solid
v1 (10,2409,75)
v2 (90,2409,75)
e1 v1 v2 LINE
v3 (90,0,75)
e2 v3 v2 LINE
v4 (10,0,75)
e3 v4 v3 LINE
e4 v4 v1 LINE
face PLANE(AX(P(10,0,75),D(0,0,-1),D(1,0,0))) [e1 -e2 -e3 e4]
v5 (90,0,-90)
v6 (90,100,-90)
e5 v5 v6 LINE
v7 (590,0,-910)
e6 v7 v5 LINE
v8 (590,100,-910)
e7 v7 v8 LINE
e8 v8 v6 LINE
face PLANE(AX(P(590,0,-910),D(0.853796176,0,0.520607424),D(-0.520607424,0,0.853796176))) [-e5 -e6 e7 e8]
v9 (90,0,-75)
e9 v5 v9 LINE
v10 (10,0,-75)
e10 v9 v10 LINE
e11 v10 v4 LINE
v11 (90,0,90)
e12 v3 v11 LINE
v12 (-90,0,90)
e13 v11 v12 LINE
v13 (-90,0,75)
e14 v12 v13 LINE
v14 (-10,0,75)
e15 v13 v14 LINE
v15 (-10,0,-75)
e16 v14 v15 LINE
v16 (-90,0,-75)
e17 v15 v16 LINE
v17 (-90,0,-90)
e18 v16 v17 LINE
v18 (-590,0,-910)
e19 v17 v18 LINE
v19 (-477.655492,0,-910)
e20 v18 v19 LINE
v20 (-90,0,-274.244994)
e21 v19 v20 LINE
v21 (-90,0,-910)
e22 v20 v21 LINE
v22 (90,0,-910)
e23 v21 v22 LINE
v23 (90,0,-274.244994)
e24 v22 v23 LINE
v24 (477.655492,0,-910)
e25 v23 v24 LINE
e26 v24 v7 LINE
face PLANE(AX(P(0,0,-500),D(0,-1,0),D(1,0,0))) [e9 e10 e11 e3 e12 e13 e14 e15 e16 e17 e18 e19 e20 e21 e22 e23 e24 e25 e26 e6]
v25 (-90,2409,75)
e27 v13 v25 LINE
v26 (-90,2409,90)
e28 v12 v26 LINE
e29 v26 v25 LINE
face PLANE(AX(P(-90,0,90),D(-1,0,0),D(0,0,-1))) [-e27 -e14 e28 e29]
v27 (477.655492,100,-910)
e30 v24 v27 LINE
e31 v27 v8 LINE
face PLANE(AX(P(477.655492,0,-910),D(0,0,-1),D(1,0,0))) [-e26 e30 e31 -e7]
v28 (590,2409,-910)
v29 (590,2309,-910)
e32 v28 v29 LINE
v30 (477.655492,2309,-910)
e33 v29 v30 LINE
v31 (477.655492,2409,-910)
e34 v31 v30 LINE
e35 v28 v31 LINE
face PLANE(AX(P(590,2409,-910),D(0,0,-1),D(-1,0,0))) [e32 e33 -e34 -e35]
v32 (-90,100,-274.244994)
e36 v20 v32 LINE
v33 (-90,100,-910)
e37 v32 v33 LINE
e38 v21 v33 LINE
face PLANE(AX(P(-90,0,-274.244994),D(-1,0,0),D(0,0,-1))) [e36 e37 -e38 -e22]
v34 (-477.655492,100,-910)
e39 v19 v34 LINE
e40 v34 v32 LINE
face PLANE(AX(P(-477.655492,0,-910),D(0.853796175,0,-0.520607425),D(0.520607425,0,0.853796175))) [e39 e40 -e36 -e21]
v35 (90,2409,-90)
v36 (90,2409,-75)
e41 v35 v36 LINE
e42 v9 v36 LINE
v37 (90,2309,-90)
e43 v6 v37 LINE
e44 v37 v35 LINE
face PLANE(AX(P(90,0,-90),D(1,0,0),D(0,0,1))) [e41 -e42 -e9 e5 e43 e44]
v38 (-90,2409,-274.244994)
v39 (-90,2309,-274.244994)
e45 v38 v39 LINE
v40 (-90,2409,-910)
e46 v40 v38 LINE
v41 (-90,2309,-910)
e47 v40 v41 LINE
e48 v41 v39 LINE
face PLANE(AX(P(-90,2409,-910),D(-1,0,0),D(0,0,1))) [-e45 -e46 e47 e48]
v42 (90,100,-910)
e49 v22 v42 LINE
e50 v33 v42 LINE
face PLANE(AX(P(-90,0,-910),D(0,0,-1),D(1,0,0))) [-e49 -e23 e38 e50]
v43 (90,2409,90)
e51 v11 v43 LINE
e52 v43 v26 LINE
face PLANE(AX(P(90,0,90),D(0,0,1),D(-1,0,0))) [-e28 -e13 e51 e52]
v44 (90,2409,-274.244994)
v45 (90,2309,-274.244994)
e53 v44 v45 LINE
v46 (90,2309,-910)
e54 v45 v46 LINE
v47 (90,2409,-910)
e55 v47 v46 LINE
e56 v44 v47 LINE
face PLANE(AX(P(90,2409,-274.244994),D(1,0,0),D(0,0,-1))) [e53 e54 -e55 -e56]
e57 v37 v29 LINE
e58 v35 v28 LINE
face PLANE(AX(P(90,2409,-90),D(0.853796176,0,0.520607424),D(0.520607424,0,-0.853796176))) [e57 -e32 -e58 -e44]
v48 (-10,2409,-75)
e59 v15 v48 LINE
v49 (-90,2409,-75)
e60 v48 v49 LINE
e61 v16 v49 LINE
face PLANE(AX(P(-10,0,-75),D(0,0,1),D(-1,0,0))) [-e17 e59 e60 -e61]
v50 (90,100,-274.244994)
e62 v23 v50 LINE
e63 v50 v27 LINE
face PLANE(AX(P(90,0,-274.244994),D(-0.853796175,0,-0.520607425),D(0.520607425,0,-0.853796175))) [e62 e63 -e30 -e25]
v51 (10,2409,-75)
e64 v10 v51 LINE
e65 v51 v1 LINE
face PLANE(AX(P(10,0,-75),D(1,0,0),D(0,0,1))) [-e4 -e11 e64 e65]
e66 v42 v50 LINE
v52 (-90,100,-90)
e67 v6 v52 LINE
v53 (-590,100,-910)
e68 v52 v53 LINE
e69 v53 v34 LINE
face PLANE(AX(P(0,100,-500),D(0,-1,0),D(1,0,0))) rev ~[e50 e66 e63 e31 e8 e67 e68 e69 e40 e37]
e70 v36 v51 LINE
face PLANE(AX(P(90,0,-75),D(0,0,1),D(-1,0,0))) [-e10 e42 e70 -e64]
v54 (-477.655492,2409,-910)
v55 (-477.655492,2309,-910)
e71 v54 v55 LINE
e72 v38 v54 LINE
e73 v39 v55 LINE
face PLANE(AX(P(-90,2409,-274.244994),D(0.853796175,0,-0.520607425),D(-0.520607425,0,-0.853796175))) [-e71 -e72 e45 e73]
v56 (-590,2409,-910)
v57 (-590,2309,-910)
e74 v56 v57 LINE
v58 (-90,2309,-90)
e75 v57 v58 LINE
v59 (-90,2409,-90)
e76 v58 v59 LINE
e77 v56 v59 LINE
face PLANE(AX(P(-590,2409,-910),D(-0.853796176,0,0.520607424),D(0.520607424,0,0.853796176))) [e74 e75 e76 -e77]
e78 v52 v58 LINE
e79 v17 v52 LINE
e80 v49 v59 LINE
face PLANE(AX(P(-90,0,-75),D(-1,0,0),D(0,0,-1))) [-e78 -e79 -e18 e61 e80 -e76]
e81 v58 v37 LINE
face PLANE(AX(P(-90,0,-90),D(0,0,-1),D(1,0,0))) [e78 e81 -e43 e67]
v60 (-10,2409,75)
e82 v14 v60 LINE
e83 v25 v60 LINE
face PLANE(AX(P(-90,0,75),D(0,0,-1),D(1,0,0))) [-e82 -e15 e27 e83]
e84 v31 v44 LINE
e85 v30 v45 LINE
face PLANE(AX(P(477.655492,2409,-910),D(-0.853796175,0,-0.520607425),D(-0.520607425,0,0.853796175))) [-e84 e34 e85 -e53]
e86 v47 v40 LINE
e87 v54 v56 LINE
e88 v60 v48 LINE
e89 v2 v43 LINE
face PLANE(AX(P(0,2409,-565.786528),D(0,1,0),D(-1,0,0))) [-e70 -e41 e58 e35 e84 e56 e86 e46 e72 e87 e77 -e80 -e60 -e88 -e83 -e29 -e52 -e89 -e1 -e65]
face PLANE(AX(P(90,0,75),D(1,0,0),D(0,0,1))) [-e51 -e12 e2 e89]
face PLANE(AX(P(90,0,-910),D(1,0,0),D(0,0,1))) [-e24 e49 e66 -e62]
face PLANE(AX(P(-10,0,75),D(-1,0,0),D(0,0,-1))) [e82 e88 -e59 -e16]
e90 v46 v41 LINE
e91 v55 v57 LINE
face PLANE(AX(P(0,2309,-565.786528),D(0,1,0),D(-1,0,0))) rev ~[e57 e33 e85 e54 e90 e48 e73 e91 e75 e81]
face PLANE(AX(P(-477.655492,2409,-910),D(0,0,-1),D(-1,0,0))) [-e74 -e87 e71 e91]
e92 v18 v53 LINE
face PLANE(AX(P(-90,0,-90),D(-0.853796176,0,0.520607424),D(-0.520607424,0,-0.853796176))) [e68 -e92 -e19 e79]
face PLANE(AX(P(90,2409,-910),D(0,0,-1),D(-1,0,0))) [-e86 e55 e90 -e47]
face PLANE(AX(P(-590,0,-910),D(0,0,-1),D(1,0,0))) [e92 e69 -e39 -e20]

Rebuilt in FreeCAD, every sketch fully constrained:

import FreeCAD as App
import Part
import Sketcher
from FreeCAD import Vector

doc = App.newDocument("Part")
body = doc.addObject("PartDesign::Body", "Body")

# Sketch on XZ plane
sketch1 = doc.addObject("Sketcher::SketchObject", "Sketch")
body.addObject(sketch1)
sketch1.AttachmentSupport = (doc.XZ_Plane, [""])
sketch1.MapMode = "FlatFace"
sketch1.addGeometry([
    Part.LineSegment(Vector(-90, -90, 0), Vector(90, -90, 0)),  # 0
    Part.LineSegment(Vector(90, -90, 0), Vector(90, -75, 0)),  # 1
    Part.LineSegment(Vector(90, -75, 0), Vector(10, -75, 0)),  # 2
    Part.LineSegment(Vector(10, -75, 0), Vector(10, 75, 0)),  # 3
    Part.LineSegment(Vector(10, 75, 0), Vector(90, 75, 0)),  # 4
    Part.LineSegment(Vector(90, 75, 0), Vector(90, 90, 0)),  # 5
    Part.LineSegment(Vector(90, 90, 0), Vector(-90, 90, 0)),  # 6
    Part.LineSegment(Vector(-90, 90, 0), Vector(-90, 75, 0)),  # 7
    Part.LineSegment(Vector(-90, 75, 0), Vector(-10, 75, 0)),  # 8
    Part.LineSegment(Vector(-10, 75, 0), Vector(-10, -75, 0)),  # 9
    Part.LineSegment(Vector(-10, -75, 0), Vector(-90, -75, 0)),  # 10
    Part.LineSegment(Vector(-90, -75, 0), Vector(-90, -90, 0)),  # 11
], False)
sketch1.addConstraint([
    Sketcher.Constraint("Coincident", 0, 2, 1, 1),
    Sketcher.Constraint("Coincident", 1, 2, 2, 1),
    Sketcher.Constraint("Coincident", 2, 2, 3, 1),
    Sketcher.Constraint("Coincident", 3, 2, 4, 1),
    Sketcher.Constraint("Coincident", 4, 2, 5, 1),
    Sketcher.Constraint("Coincident", 5, 2, 6, 1),
    Sketcher.Constraint("Coincident", 6, 2, 7, 1),
    Sketcher.Constraint("Coincident", 7, 2, 8, 1),
    Sketcher.Constraint("Coincident", 8, 2, 9, 1),
    Sketcher.Constraint("Coincident", 9, 2, 10, 1),
    Sketcher.Constraint("Coincident", 10, 2, 11, 1),
    Sketcher.Constraint("Coincident", 11, 2, 0, 1),
    Sketcher.Constraint("Horizontal", 0),
    Sketcher.Constraint("Vertical", 1),
    Sketcher.Constraint("Horizontal", 2),
    Sketcher.Constraint("Vertical", 3),
    Sketcher.Constraint("Horizontal", 4),
    Sketcher.Constraint("Vertical", 5),
    Sketcher.Constraint("Horizontal", 6),
    Sketcher.Constraint("Vertical", 7),
    Sketcher.Constraint("Horizontal", 8),
    Sketcher.Constraint("Vertical", 9),
    Sketcher.Constraint("Horizontal", 10),
    Sketcher.Constraint("Vertical", 11),
    Sketcher.Constraint("Symmetric", 0, 2, 6, 2, -1, 1),
    Sketcher.Constraint("Symmetric", 2, 2, 8, 2, -1, 1),
    Sketcher.Constraint("Symmetric", 4, 2, 10, 2, -1, 1),
    Sketcher.Constraint("Symmetric", 4, 2, 7, 2, -2),
    Sketcher.Constraint("DistanceX", 0, 1, 0, 2, 180.0),
    Sketcher.Constraint("DistanceX", 2, 2, 2, 1, 80.0),
    Sketcher.Constraint("DistanceY", 1, 1, 1, 2, 15.0),
    Sketcher.Constraint("DistanceY", 3, 1, 3, 2, 150.0),
])
pad1 = doc.addObject("PartDesign::Pad", "Pad")
body.addObject(pad1)
pad1.Profile = sketch1
pad1.Length = 2409
pad1.Reversed = True

# Sketch on XZ plane
sketch2 = doc.addObject("Sketcher::SketchObject", "Sketch001")
body.addObject(sketch2)
sketch2.AttachmentSupport = (doc.XZ_Plane, [""])
sketch2.MapMode = "FlatFace"
sketch2.addGeometry([
    Part.LineSegment(Vector(90, -90, 0), Vector(-90, -90, 0)),  # 0
    Part.LineSegment(Vector(-90, -90, 0), Vector(-590, -910, 0)),  # 1
    Part.LineSegment(Vector(-590, -910, 0), Vector(-478, -910, 0)),  # 2
    Part.LineSegment(Vector(-478, -910, 0), Vector(-90, -274, 0)),  # 3
    Part.LineSegment(Vector(-90, -274, 0), Vector(-90, -910, 0)),  # 4
    Part.LineSegment(Vector(-90, -910, 0), Vector(90, -910, 0)),  # 5
    Part.LineSegment(Vector(90, -910, 0), Vector(90, -274, 0)),  # 6
    Part.LineSegment(Vector(90, -274, 0), Vector(478, -910, 0)),  # 7
    Part.LineSegment(Vector(478, -910, 0), Vector(590, -910, 0)),  # 8
    Part.LineSegment(Vector(590, -910, 0), Vector(90, -90, 0)),  # 9
], False)
sketch2.addConstraint([
    Sketcher.Constraint("Coincident", 0, 2, 1, 1),
    Sketcher.Constraint("Coincident", 1, 2, 2, 1),
    Sketcher.Constraint("Coincident", 2, 2, 3, 1),
    Sketcher.Constraint("Coincident", 3, 2, 4, 1),
    Sketcher.Constraint("Coincident", 4, 2, 5, 1),
    Sketcher.Constraint("Coincident", 5, 2, 6, 1),
    Sketcher.Constraint("Coincident", 6, 2, 7, 1),
    Sketcher.Constraint("Coincident", 7, 2, 8, 1),
    Sketcher.Constraint("Coincident", 8, 2, 9, 1),
    Sketcher.Constraint("Coincident", 9, 2, 0, 1),
    Sketcher.Constraint("Horizontal", 0),
    Sketcher.Constraint("Horizontal", 2),
    Sketcher.Constraint("Vertical", 4),
    Sketcher.Constraint("Horizontal", 5),
    Sketcher.Constraint("Vertical", 6),
    Sketcher.Constraint("Horizontal", 8),
    Sketcher.Constraint("Symmetric", 3, 2, 6, 2, -2),
    Sketcher.Constraint("Symmetric", 2, 2, 7, 2, -2),
    Sketcher.Constraint("Parallel", 1, 3),
    Sketcher.Constraint("Parallel", 7, 9),
    Sketcher.Constraint("Horizontal", 2, 2, 4, 2),
    Sketcher.Constraint("Vertical", 0, 2, 3, 2),
    Sketcher.Constraint("Vertical", 6, 2, 9, 2),
    Sketcher.Constraint("DistanceX", 0, 2, 0, 1, 180.0),
    Sketcher.Constraint("DistanceY", 0, 2, -1, 1, 90.0),
    Sketcher.Constraint("DistanceX", 1, 2, -1, 1, 590.0),
    Sketcher.Constraint("DistanceY", 1, 2, -1, 1, 910.0),
    Sketcher.Constraint("DistanceX", 2, 1, 2, 2, 112.344508),
])
pad2 = doc.addObject("PartDesign::Pad", "Pad001")
body.addObject(pad2)
pad2.Profile = sketch2
pad2.Length = 100
pad2.Reversed = True

# Sketch on XZ plane
sketch3 = doc.addObject("Sketcher::SketchObject", "Sketch002")
body.addObject(sketch3)
sketch3.AttachmentSupport = (doc.XZ_Plane, [""])
sketch3.MapMode = "FlatFace"
sketch3.AttachmentOffset = App.Placement(Vector(0, 0, -2409), App.Rotation())
sketch3.addGeometry([
    Part.LineSegment(Vector(-90, -910, 0), Vector(-90, -274, 0)),  # 0
    Part.LineSegment(Vector(-90, -274, 0), Vector(-478, -910, 0)),  # 1
    Part.LineSegment(Vector(-478, -910, 0), Vector(-590, -910, 0)),  # 2
    Part.LineSegment(Vector(-590, -910, 0), Vector(-90, -90, 0)),  # 3
    Part.LineSegment(Vector(-90, -90, 0), Vector(90, -90, 0)),  # 4
    Part.LineSegment(Vector(90, -90, 0), Vector(590, -910, 0)),  # 5
    Part.LineSegment(Vector(590, -910, 0), Vector(478, -910, 0)),  # 6
    Part.LineSegment(Vector(478, -910, 0), Vector(90, -274, 0)),  # 7
    Part.LineSegment(Vector(90, -274, 0), Vector(90, -910, 0)),  # 8
    Part.LineSegment(Vector(90, -910, 0), Vector(-90, -910, 0)),  # 9
], False)
sketch3.addConstraint([
    Sketcher.Constraint("Coincident", 0, 2, 1, 1),
    Sketcher.Constraint("Coincident", 1, 2, 2, 1),
    Sketcher.Constraint("Coincident", 2, 2, 3, 1),
    Sketcher.Constraint("Coincident", 3, 2, 4, 1),
    Sketcher.Constraint("Coincident", 4, 2, 5, 1),
    Sketcher.Constraint("Coincident", 5, 2, 6, 1),
    Sketcher.Constraint("Coincident", 6, 2, 7, 1),
    Sketcher.Constraint("Coincident", 7, 2, 8, 1),
    Sketcher.Constraint("Coincident", 8, 2, 9, 1),
    Sketcher.Constraint("Coincident", 9, 2, 0, 1),
    Sketcher.Constraint("Vertical", 0),
    Sketcher.Constraint("Horizontal", 2),
    Sketcher.Constraint("Horizontal", 4),
    Sketcher.Constraint("Horizontal", 6),
    Sketcher.Constraint("Vertical", 8),
    Sketcher.Constraint("Horizontal", 9),
    Sketcher.Constraint("Symmetric", 2, 2, 5, 2, -2),
    Sketcher.Constraint("Symmetric", 0, 2, 7, 2, -2),
    Sketcher.Constraint("Parallel", 1, 3),
    Sketcher.Constraint("Parallel", 5, 7),
    Sketcher.Constraint("Horizontal", 6, 2, 8, 2),
    Sketcher.Constraint("Vertical", 0, 2, 3, 2),
    Sketcher.Constraint("Vertical", 4, 2, 7, 2),
    Sketcher.Constraint("DistanceX", 4, 1, 4, 2, 180.0),
    Sketcher.Constraint("DistanceY", 1, 2, -1, 1, 910.0),
    Sketcher.Constraint("DistanceX", 2, 2, -1, 1, 590.0),
    Sketcher.Constraint("DistanceY", 3, 2, -1, 1, 90.0),
    Sketcher.Constraint("DistanceX", 2, 2, 2, 1, 112.344508),
])
pad3 = doc.addObject("PartDesign::Pad", "Pad002")
body.addObject(pad3)
pad3.Profile = sketch3
pad3.Length = 100

doc.recompute()
